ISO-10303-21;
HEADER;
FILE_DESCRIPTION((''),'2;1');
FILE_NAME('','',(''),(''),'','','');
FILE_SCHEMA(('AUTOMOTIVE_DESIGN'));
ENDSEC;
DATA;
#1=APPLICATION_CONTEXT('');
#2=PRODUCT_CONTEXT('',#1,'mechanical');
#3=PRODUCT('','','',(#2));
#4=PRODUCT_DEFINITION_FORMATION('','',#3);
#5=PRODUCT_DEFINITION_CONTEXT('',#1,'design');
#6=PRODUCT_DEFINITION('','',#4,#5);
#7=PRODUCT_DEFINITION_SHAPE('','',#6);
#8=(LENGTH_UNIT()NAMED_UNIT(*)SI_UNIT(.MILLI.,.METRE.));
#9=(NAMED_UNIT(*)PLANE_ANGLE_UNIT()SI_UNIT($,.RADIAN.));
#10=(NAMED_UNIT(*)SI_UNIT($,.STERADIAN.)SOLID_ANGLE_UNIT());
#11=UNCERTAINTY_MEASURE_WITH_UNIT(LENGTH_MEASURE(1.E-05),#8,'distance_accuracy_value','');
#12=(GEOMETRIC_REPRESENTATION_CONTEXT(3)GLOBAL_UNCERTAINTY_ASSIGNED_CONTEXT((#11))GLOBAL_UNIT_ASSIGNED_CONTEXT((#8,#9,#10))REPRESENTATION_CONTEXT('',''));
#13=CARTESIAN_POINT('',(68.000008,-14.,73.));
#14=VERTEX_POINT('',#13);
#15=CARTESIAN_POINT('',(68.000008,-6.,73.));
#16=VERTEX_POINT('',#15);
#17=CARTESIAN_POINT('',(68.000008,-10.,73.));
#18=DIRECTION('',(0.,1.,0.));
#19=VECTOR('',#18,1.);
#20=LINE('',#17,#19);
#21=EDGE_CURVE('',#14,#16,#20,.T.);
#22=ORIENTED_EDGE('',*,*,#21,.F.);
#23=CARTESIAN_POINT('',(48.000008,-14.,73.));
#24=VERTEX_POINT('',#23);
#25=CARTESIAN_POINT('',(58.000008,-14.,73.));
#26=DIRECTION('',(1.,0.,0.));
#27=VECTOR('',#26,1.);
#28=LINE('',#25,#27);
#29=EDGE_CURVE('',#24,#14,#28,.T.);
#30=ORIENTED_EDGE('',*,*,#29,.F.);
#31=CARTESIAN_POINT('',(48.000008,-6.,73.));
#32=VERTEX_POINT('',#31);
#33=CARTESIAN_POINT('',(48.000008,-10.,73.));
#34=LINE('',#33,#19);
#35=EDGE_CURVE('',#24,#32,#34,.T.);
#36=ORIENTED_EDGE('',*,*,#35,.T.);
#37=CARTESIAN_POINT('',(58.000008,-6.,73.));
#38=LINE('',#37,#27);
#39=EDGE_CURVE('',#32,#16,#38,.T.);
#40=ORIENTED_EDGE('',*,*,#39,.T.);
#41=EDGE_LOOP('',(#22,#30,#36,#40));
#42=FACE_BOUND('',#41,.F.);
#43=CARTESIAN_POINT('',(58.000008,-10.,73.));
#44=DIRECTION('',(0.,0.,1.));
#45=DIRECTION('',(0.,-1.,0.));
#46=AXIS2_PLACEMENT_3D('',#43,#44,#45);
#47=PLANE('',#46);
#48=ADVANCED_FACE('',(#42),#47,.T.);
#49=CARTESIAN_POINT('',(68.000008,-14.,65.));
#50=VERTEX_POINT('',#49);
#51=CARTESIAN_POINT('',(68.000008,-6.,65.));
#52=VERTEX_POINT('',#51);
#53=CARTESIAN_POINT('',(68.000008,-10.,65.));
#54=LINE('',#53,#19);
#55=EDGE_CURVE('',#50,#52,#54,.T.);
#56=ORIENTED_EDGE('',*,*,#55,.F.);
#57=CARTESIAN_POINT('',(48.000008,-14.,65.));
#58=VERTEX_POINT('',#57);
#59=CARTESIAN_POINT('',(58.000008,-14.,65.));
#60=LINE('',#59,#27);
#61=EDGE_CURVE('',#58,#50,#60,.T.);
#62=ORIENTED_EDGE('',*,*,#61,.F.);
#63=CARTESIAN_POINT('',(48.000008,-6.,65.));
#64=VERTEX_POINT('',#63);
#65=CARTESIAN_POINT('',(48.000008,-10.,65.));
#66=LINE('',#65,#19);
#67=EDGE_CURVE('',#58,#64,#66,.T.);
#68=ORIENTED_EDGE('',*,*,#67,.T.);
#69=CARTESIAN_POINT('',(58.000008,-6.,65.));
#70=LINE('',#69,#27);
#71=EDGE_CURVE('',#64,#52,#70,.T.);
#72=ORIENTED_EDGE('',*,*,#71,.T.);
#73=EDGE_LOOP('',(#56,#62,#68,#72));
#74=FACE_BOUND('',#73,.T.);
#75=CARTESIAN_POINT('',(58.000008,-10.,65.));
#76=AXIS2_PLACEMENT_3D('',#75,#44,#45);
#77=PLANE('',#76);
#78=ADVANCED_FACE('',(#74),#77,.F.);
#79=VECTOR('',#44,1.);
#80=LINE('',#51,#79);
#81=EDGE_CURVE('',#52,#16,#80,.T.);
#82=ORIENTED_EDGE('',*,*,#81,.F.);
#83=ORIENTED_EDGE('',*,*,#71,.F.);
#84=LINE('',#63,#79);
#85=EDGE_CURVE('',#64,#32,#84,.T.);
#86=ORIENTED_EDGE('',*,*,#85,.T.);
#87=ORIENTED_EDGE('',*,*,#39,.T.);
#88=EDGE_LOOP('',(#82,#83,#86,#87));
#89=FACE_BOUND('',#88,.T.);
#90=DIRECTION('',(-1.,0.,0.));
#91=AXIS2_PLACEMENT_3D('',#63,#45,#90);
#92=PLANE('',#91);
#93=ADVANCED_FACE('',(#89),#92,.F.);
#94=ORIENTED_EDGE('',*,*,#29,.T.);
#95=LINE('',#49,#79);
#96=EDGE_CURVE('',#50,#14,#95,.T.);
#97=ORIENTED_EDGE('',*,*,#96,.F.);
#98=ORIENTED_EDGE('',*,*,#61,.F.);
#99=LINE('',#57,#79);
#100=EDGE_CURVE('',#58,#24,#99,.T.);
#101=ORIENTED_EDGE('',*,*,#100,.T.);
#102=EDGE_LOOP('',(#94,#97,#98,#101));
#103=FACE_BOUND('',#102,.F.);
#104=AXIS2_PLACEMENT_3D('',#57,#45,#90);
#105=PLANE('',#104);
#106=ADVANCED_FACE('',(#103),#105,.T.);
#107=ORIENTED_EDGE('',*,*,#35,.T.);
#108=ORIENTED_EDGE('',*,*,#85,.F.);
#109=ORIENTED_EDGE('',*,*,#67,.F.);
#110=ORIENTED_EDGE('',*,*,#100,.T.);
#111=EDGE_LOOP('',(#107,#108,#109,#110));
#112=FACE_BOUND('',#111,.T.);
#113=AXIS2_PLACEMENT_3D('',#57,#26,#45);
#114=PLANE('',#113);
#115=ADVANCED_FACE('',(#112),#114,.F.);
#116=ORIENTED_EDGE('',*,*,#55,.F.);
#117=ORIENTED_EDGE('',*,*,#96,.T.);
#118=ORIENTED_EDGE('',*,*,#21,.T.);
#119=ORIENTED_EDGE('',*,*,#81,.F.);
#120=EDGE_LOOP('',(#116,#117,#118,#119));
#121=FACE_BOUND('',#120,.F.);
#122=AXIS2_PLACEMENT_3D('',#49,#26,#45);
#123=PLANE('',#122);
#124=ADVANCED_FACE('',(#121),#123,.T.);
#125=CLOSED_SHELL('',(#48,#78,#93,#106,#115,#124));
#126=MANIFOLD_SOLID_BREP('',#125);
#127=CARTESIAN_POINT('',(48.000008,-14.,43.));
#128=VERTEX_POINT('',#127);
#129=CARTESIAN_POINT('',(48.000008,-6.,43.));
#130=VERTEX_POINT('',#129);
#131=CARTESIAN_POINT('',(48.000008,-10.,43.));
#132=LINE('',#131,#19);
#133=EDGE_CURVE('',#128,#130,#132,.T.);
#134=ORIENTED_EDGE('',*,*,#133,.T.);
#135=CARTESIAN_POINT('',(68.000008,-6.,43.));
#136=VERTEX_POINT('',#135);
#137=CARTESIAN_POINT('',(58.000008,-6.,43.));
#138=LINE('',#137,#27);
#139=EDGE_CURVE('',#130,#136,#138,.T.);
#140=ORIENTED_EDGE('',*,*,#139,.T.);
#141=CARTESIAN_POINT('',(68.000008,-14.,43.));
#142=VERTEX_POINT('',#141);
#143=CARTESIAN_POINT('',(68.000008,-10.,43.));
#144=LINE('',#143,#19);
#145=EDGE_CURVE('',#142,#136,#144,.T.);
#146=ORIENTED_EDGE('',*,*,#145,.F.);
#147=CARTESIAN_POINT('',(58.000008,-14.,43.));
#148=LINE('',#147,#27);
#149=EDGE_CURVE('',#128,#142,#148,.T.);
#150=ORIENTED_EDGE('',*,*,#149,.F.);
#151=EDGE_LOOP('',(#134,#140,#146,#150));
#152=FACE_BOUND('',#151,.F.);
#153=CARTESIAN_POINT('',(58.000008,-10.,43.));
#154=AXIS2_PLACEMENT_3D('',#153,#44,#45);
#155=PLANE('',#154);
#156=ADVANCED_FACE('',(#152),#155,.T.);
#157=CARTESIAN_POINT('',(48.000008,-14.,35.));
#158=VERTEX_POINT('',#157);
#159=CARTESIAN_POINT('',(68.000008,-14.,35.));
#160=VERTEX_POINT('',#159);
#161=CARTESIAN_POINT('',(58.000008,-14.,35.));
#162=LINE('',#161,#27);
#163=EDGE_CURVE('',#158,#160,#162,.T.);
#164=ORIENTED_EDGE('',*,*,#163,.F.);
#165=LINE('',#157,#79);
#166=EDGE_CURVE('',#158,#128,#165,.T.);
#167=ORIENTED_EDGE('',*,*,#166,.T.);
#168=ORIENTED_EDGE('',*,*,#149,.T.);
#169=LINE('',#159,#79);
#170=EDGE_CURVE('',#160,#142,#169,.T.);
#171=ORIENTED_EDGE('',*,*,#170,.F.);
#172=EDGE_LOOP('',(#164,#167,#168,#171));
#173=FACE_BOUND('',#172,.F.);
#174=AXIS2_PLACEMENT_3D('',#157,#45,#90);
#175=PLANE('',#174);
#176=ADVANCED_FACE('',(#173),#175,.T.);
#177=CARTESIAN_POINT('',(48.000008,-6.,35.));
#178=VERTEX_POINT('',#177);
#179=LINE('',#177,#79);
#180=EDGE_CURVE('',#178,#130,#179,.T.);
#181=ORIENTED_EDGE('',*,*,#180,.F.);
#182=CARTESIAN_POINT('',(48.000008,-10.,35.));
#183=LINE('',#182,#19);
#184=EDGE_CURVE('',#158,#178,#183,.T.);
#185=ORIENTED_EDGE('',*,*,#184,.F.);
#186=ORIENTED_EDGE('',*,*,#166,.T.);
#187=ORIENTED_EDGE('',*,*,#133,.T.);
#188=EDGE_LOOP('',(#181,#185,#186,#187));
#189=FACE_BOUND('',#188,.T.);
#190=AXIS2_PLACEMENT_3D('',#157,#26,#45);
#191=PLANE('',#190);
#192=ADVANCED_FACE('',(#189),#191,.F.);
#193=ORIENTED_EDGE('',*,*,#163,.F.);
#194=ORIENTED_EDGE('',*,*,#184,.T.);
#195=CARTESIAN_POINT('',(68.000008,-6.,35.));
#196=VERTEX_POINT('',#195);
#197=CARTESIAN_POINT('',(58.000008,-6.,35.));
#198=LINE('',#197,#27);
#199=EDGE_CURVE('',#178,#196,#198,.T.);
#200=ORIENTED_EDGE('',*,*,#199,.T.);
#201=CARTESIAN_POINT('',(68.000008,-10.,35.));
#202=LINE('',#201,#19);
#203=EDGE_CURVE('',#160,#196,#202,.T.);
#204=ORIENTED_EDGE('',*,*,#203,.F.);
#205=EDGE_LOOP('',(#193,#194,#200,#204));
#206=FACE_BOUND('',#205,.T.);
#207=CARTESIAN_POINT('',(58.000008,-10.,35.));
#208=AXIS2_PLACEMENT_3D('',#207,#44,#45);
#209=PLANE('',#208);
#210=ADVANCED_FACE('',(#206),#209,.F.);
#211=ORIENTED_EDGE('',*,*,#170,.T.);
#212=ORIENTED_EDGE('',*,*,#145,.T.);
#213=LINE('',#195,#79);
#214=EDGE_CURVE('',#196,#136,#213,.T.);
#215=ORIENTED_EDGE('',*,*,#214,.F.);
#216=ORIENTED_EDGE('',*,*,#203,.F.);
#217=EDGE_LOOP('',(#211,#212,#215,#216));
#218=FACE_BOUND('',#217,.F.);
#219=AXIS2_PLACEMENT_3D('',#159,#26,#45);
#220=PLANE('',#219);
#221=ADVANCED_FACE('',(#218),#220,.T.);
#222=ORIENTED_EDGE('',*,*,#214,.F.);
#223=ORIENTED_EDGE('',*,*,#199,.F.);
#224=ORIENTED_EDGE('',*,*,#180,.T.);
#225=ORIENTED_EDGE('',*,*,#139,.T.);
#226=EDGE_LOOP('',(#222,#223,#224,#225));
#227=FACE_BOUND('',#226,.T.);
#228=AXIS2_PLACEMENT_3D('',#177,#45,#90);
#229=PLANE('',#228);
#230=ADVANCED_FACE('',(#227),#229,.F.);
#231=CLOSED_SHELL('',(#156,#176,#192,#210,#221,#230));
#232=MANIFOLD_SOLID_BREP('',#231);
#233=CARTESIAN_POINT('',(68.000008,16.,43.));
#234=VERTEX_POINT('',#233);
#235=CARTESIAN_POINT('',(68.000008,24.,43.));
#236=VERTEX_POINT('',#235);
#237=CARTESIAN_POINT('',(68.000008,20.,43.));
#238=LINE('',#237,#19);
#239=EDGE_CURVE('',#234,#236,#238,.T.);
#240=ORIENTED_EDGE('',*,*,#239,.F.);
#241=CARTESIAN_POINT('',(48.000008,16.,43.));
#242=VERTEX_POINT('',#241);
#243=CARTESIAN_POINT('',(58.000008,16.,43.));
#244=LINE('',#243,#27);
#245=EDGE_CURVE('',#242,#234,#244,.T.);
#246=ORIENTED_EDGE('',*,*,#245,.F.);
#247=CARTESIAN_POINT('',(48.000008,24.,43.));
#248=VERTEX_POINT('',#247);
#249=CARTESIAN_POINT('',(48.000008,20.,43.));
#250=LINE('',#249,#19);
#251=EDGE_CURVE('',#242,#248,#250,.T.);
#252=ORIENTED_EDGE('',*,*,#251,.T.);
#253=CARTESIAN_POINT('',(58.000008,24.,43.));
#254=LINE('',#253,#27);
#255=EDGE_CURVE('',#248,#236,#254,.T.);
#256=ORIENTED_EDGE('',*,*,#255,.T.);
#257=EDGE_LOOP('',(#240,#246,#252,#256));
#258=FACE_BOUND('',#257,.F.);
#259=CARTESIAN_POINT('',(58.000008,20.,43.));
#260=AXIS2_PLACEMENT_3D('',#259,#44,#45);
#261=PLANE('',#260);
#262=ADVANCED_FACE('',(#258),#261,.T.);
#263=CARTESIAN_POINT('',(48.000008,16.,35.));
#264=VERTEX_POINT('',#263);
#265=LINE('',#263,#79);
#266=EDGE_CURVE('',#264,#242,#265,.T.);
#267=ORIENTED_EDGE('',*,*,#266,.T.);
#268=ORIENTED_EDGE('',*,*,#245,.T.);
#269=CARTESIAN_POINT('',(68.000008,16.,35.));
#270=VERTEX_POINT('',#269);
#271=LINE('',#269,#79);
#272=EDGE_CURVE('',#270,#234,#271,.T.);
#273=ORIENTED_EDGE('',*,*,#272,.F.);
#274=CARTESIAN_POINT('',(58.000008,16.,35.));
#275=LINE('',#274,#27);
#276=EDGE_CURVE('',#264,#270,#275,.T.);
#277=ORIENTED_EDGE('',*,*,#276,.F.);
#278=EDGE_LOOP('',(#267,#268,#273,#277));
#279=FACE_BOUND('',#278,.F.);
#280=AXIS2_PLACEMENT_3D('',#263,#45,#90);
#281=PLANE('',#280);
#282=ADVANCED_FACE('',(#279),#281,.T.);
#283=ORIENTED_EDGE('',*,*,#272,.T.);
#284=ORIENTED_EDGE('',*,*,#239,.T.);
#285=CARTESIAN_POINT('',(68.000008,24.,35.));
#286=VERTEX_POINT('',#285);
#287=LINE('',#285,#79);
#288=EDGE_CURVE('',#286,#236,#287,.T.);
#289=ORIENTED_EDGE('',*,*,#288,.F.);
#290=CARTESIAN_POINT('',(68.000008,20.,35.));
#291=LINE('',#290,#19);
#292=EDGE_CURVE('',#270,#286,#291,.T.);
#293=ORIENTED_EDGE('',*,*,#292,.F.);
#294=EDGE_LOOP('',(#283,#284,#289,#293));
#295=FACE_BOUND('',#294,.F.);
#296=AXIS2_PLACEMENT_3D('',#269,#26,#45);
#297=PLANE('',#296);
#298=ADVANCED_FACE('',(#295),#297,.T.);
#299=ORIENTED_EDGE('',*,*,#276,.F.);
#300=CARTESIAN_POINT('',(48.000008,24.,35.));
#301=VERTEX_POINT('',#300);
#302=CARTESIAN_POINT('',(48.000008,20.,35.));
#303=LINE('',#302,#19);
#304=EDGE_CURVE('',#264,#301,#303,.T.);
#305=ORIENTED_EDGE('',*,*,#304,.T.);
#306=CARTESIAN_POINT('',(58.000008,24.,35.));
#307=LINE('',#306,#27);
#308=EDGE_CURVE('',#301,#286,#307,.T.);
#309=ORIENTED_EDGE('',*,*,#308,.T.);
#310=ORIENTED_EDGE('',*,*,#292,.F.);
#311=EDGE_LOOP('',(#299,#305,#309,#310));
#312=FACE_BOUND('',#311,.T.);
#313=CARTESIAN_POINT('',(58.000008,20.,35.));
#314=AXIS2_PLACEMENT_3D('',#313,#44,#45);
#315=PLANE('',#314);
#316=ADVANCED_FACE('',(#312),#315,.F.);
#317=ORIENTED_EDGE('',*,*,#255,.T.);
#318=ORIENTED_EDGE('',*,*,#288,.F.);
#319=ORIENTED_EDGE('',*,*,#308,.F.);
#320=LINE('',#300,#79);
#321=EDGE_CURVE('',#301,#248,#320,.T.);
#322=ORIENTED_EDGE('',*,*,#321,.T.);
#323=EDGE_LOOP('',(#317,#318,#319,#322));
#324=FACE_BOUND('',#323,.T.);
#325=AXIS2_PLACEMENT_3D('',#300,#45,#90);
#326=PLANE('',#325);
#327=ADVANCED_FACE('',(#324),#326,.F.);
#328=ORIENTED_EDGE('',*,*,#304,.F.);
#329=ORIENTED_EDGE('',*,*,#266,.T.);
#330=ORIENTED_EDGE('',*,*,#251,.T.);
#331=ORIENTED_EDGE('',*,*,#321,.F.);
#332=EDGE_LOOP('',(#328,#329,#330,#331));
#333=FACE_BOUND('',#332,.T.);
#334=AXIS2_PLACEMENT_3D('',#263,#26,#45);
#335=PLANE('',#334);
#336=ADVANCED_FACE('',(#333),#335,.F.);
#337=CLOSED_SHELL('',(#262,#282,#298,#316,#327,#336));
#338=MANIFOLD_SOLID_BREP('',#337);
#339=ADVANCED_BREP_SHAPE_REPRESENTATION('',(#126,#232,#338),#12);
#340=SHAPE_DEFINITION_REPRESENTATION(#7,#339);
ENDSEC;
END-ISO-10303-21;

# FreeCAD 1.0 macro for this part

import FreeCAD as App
import Part
import Sketcher
from FreeCAD import Vector
Q = App.Units.Quantity

doc = App.newDocument("Part")
body = doc.addObject("PartDesign::Body", "Body")

# Sketch on XY plane
sketch1 = body.newObject("Sketcher::SketchObject", "Sketch")
sketch1.AttachmentSupport = (doc.getObject("XY_Plane"), [""])
sketch1.MapMode = "FlatFace"
sketch1.AttachmentOffset = App.Placement(Vector(0, 0, 35), App.Rotation())
sketch1.addGeometry(Part.LineSegment(Vector(-68, 16, 0), Vector(-48, 16, 0)), False)
sketch1.addGeometry(Part.LineSegment(Vector(-48, 16, 0), Vector(-48, 24, 0)), False)
sketch1.addGeometry(Part.LineSegment(Vector(-48, 24, 0), Vector(-68, 24, 0)), False)
sketch1.addGeometry(Part.LineSegment(Vector(-68, 24, 0), Vector(-68, 16, 0)), False)
sketch1.addConstraint(Sketcher.Constraint("Coincident", 0, 2, 1, 1))
sketch1.addConstraint(Sketcher.Constraint("Coincident", 1, 2, 2, 1))
sketch1.addConstraint(Sketcher.Constraint("Coincident", 2, 2, 3, 1))
sketch1.addConstraint(Sketcher.Constraint("Coincident", 3, 2, 0, 1))
sketch1.addConstraint(Sketcher.Constraint("Horizontal", 0))
sketch1.addConstraint(Sketcher.Constraint("Vertical", 1))
sketch1.addConstraint(Sketcher.Constraint("Horizontal", 2))
sketch1.addConstraint(Sketcher.Constraint("Vertical", 3))
sketch1.addConstraint(Sketcher.Constraint("DistanceX", 0, 1, 0, 2, Q("20 mm")))
sketch1.addConstraint(Sketcher.Constraint("DistanceY", 1, 1, 1, 2, Q("8 mm")))
sketch1.addConstraint(Sketcher.Constraint("DistanceX", 0, 2, -1, 1, Q("48 mm")))
sketch1.addConstraint(Sketcher.Constraint("DistanceY", -1, 1, 0, 2, Q("16 mm")))
pad1 = body.newObject("PartDesign::Pad", "Pad")
pad1.Profile = sketch1
pad1.Length = 8
body2 = doc.addObject("PartDesign::Body", "Body001")

# Sketch on XY plane
sketch2 = body2.newObject("Sketcher::SketchObject", "Sketch001")
sketch2.AttachmentSupport = (doc.getObject("XY_Plane001"), [""])
sketch2.MapMode = "FlatFace"
sketch2.AttachmentOffset = App.Placement(Vector(0, 0, 65), App.Rotation())
sketch2.addGeometry(Part.LineSegment(Vector(-68, -14, 0), Vector(-48, -14, 0)), False)
sketch2.addGeometry(Part.LineSegment(Vector(-48, -14, 0), Vector(-48, -6, 0)), False)
sketch2.addGeometry(Part.LineSegment(Vector(-48, -6, 0), Vector(-68, -6, 0)), False)
sketch2.addGeometry(Part.LineSegment(Vector(-68, -6, 0), Vector(-68, -14, 0)), False)
sketch2.addConstraint(Sketcher.Constraint("Coincident", 0, 2, 1, 1))
sketch2.addConstraint(Sketcher.Constraint("Coincident", 1, 2, 2, 1))
sketch2.addConstraint(Sketcher.Constraint("Coincident", 2, 2, 3, 1))
sketch2.addConstraint(Sketcher.Constraint("Coincident", 3, 2, 0, 1))
sketch2.addConstraint(Sketcher.Constraint("Horizontal", 0))
sketch2.addConstraint(Sketcher.Constraint("Vertical", 1))
sketch2.addConstraint(Sketcher.Constraint("Horizontal", 2))
sketch2.addConstraint(Sketcher.Constraint("Vertical", 3))
sketch2.addConstraint(Sketcher.Constraint("DistanceX", 0, 1, 0, 2, Q("20 mm")))
sketch2.addConstraint(Sketcher.Constraint("DistanceY", 1, 1, 1, 2, Q("8 mm")))
sketch2.addConstraint(Sketcher.Constraint("DistanceX", 0, 2, -1, 1, Q("48 mm")))
sketch2.addConstraint(Sketcher.Constraint("DistanceY", 0, 2, -1, 1, Q("14 mm")))
pad2 = body2.newObject("PartDesign::Pad", "Pad001")
pad2.Profile = sketch2
pad2.Length = 8
body3 = doc.addObject("PartDesign::Body", "Body002")
body3.AllowCompound = True

# Sketch on XY plane
sketch3 = body3.newObject("Sketcher::SketchObject", "Sketch002")
sketch3.AttachmentSupport = (doc.getObject("XY_Plane002"), [""])
sketch3.MapMode = "FlatFace"
sketch3.AttachmentOffset = App.Placement(Vector(0, 0, 35), App.Rotation())
sketch3.addGeometry(Part.LineSegment(Vector(-68, -14, 0), Vector(-48, -14, 0)), False)
sketch3.addGeometry(Part.LineSegment(Vector(-48, -14, 0), Vector(-48, -6, 0)), False)
sketch3.addGeometry(Part.LineSegment(Vector(-48, -6, 0), Vector(-68, -6, 0)), False)
sketch3.addGeometry(Part.LineSegment(Vector(-68, -6, 0), Vector(-68, -14, 0)), False)
sketch3.addConstraint(Sketcher.Constraint("Coincident", 0, 2, 1, 1))
sketch3.addConstraint(Sketcher.Constraint("Coincident", 1, 2, 2, 1))
sketch3.addConstraint(Sketcher.Constraint("Coincident", 2, 2, 3, 1))
sketch3.addConstraint(Sketcher.Constraint("Coincident", 3, 2, 0, 1))
sketch3.addConstraint(Sketcher.Constraint("Horizontal", 0))
sketch3.addConstraint(Sketcher.Constraint("Vertical", 1))
sketch3.addConstraint(Sketcher.Constraint("Horizontal", 2))
sketch3.addConstraint(Sketcher.Constraint("Vertical", 3))
sketch3.addConstraint(Sketcher.Constraint("DistanceX", 0, 1, 0, 2, Q("20 mm")))
sketch3.addConstraint(Sketcher.Constraint("DistanceY", 1, 1, 1, 2, Q("8 mm")))
sketch3.addConstraint(Sketcher.Constraint("DistanceX", 0, 2, -1, 1, Q("48 mm")))
sketch3.addConstraint(Sketcher.Constraint("DistanceY", 0, 2, -1, 1, Q("14 mm")))
pad3 = body3.newObject("PartDesign::Pad", "Pad002")
pad3.Profile = sketch3
pad3.Length = 8
doc.recompute()

boolean = body3.newObject("PartDesign::Boolean", "Boolean")
boolean.Type = "Fuse"
boolean.addObjects([body])
doc.recompute()

boolean2 = body3.newObject("PartDesign::Boolean", "Boolean001")
boolean2.Type = "Fuse"
boolean2.addObjects([body2])
body4 = doc.addObject("PartDesign::Body", "Body003")
body4.AllowCompound = True
doc.recompute()

mirroring = doc.addObject("Part::Mirroring", "Mirroring")
mirroring.Source = body3
mirroring.Base = Vector(0.000004, 5, 54)
mirroring.Normal = Vector(1, 0, 0)
body4.BaseFeature = mirroring
doc.recompute()
body3.Visibility = False
mirroring.Visibility = False

doc.recompute()
